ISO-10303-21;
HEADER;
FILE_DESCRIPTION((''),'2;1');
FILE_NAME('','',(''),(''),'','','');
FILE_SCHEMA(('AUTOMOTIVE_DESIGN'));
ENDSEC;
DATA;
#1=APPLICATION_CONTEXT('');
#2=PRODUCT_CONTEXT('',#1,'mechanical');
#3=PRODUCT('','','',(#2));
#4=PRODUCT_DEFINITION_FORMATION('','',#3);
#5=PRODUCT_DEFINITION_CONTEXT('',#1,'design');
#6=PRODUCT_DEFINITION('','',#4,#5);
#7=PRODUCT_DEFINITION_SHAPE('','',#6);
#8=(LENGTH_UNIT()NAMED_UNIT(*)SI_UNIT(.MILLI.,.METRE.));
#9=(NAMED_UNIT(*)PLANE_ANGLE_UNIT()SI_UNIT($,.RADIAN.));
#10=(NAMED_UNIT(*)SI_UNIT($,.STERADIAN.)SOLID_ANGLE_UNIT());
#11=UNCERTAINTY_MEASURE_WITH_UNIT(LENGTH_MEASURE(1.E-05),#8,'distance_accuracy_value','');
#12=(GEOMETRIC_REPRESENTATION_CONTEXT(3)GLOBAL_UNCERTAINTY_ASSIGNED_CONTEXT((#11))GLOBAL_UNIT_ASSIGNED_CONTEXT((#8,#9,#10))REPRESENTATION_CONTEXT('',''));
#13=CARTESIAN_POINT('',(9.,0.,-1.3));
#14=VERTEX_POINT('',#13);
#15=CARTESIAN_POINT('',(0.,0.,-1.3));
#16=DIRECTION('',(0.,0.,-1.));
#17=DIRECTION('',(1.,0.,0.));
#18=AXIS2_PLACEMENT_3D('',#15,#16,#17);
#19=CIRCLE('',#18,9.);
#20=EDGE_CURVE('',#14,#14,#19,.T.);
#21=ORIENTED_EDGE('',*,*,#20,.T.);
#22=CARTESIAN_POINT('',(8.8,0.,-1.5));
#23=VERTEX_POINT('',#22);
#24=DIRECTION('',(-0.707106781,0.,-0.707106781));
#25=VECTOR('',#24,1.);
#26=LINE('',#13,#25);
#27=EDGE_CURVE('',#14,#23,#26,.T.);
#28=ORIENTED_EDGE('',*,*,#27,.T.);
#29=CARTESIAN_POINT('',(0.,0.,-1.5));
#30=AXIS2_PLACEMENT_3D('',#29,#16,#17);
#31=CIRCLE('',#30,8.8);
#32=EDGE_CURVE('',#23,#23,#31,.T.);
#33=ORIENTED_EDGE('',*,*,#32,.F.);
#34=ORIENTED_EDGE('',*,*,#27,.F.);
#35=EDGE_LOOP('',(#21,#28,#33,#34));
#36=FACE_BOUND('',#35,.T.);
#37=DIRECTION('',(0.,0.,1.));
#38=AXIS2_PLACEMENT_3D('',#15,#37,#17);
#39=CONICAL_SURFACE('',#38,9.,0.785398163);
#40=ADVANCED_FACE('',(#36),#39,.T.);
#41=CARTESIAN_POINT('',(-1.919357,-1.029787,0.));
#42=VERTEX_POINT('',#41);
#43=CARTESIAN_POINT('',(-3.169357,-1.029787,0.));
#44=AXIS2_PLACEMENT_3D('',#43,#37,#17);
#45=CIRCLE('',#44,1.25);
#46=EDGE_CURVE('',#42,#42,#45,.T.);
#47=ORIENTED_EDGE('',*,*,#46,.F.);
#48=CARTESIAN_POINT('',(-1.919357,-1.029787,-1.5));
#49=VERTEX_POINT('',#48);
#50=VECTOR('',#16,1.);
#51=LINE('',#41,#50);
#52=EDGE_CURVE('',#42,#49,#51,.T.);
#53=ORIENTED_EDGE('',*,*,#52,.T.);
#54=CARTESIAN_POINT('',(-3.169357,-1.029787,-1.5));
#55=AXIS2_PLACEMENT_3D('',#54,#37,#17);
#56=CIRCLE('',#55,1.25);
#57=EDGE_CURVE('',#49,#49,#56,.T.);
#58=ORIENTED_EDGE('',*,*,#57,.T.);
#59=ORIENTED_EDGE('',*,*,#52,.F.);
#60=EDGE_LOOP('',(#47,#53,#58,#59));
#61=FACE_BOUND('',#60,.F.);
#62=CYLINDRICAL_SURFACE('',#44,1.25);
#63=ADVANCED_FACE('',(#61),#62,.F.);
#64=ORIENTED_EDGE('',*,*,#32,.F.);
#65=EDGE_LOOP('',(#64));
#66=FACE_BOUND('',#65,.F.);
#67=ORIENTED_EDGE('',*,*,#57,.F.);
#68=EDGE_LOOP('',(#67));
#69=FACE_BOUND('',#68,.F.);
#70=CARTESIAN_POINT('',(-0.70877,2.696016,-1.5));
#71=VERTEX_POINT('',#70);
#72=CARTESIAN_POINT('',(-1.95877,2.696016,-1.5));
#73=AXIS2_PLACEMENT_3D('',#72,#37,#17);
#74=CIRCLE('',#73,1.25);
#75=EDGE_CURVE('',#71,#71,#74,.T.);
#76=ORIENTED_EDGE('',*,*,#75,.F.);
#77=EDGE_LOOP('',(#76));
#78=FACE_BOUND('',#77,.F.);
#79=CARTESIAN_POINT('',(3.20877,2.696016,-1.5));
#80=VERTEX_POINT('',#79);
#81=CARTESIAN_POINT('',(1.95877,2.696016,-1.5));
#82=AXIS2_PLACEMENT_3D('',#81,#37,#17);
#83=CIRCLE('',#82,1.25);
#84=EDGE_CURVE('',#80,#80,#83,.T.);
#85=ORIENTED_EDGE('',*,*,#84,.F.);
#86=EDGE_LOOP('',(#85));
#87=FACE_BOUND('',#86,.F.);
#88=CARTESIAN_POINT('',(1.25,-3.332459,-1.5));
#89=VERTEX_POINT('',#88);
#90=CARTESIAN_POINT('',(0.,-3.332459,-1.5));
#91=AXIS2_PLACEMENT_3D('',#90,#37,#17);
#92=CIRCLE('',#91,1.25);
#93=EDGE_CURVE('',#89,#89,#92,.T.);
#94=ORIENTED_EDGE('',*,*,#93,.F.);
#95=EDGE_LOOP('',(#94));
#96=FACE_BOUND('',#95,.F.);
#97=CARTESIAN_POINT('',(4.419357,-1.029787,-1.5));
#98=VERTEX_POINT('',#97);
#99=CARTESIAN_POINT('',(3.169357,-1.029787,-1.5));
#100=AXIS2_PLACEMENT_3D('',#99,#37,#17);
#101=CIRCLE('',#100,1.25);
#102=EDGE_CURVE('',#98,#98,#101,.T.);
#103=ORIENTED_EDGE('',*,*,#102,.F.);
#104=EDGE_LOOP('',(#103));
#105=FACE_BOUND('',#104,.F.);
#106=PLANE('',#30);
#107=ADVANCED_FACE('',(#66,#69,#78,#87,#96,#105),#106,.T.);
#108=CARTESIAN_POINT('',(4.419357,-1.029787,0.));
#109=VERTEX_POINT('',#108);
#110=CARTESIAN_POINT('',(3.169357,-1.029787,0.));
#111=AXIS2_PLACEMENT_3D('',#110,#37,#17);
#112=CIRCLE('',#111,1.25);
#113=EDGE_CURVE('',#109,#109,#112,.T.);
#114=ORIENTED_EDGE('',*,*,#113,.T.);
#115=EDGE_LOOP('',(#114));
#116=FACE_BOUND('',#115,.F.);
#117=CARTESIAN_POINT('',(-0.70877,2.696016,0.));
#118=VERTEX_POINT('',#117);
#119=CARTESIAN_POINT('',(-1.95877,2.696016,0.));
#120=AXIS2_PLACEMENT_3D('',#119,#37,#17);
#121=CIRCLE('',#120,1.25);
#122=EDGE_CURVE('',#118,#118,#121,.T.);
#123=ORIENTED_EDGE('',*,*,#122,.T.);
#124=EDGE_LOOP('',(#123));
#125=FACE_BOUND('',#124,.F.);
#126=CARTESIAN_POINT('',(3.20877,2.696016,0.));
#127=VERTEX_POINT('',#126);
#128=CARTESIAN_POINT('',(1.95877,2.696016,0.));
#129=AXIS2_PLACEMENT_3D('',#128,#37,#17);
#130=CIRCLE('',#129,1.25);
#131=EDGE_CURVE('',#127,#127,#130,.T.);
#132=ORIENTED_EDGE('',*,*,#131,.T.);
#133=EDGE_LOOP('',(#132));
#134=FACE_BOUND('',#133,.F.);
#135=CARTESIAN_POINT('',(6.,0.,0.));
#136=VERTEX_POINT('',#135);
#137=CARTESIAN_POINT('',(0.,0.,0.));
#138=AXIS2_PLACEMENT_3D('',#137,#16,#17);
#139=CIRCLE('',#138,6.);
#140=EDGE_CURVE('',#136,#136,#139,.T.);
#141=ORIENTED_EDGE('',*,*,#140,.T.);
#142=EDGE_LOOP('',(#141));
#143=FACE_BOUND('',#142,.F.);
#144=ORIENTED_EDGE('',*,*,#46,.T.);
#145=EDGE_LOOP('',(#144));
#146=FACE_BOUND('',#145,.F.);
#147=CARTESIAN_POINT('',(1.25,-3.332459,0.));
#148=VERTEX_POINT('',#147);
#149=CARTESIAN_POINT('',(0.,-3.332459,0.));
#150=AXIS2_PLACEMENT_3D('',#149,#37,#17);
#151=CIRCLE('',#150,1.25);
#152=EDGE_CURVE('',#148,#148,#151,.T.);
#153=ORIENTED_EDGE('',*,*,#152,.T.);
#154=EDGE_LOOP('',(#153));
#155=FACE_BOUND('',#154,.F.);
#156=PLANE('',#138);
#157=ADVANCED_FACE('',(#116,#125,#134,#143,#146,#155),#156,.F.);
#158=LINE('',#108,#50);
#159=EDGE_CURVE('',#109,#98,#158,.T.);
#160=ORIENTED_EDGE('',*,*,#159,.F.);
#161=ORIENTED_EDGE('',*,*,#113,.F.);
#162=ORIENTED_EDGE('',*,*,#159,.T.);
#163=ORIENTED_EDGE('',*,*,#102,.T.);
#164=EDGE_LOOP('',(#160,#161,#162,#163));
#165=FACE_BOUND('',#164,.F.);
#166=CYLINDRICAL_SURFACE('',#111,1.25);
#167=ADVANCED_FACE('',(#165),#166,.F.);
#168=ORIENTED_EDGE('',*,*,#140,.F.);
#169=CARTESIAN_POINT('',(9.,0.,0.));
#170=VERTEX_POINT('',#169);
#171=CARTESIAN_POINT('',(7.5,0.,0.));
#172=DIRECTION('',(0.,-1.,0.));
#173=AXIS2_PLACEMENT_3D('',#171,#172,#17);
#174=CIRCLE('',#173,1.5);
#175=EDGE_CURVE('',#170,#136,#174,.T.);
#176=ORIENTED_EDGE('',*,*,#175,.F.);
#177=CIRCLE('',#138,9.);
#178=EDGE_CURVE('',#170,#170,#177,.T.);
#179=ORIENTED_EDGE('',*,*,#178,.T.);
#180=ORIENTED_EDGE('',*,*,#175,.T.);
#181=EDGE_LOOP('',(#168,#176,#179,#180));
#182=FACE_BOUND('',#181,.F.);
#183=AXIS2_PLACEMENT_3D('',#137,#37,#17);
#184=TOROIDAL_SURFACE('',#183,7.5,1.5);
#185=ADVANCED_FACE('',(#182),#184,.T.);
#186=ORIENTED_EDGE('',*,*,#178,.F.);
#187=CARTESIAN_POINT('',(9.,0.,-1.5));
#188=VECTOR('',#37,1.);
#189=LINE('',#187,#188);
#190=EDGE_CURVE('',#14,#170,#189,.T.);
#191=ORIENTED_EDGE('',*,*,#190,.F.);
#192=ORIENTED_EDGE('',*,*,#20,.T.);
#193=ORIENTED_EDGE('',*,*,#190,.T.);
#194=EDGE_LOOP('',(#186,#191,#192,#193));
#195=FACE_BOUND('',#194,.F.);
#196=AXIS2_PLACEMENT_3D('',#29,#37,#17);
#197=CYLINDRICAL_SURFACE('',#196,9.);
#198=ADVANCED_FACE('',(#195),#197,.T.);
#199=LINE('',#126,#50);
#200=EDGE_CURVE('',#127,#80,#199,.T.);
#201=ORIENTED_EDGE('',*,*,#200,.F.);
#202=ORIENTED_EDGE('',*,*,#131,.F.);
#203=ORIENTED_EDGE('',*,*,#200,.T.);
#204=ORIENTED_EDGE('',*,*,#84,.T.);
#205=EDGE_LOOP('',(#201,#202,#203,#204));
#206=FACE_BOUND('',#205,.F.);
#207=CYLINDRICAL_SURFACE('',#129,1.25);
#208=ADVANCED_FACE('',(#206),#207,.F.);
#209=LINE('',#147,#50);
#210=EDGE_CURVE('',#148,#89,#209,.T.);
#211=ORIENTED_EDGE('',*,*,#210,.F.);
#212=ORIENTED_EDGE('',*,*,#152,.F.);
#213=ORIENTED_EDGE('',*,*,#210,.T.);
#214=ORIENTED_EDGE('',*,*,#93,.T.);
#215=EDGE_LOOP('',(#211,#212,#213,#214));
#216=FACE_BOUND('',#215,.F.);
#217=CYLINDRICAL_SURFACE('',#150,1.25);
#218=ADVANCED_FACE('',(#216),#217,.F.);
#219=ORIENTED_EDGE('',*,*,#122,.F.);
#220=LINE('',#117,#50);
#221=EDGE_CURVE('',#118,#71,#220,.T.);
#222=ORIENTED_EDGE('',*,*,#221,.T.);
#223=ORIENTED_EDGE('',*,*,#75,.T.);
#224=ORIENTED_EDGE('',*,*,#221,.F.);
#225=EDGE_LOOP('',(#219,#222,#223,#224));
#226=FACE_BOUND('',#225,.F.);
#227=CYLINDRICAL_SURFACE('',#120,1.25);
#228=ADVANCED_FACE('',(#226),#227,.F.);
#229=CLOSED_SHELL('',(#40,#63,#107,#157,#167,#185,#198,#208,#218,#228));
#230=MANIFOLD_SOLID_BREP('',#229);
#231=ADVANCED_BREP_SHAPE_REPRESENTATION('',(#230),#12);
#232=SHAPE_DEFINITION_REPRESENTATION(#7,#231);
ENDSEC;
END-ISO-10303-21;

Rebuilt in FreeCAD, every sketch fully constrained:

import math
import FreeCAD as App
import Part
import Sketcher
Q = App.Units.Quantity


def edges_at(feature, points):
    """Names of the edges that pass closest to the given points."""
    edges = feature.Shape.Edges
    near = lambda p: min(range(len(edges)), key=lambda i: edges[i].distToShape(Part.Vertex(*p))[0])
    return sorted({f"Edge{near(p) + 1}" for p in points})

doc = App.newDocument("Part")
body = doc.addObject("PartDesign::Body", "Body")

sketch1 = doc.addObject("Sketcher::SketchObject", "Sketch")
body.addObject(sketch1)
sketch1.AttachmentSupport = (doc.XZ_Plane, [""])
sketch1.MapMode = "FlatFace"
sketch1.addGeometry([
    Part.LineSegment(App.Vector(9, -1.5, 0), App.Vector(9, 0, 0)),
    Part.ArcOfCircle(Part.Circle(App.Vector(7.5, 0, 0), App.Vector(0, 0, 1), 1.5), math.radians(0), math.radians(180)),
    Part.LineSegment(App.Vector(6, 0, 0), App.Vector(0, 0, 0)),
    Part.LineSegment(App.Vector(0, 0, 0), App.Vector(0, -1.5, 0)),
    Part.LineSegment(App.Vector(0, -1.5, 0), App.Vector(9, -1.5, 0)),
], False)
sketch1.addConstraint([
    Sketcher.Constraint("Tangent", 0, 2, 1, 1),
    Sketcher.Constraint("Coincident", 1, 2, 2, 1),
    Sketcher.Constraint("Coincident", 2, 2, 3, 1),
    Sketcher.Constraint("Coincident", 3, 2, 4, 1),
    Sketcher.Constraint("Coincident", 4, 2, 0, 1),
    Sketcher.Constraint("Vertical", 0),
    Sketcher.Constraint("Horizontal", 2),
    Sketcher.Constraint("Vertical", 3),
    Sketcher.Constraint("Horizontal", 4),
    Sketcher.Constraint("Coincident", 2, 2, -1, 1),
    Sketcher.Constraint("PointOnObject", 1, 3, -1),
    Sketcher.Constraint("Radius", 1, Q("1.5 mm")),
    Sketcher.Constraint("DistanceX", 2, 2, 2, 1, Q("6 mm")),
    Sketcher.Constraint("DistanceY", 0, 1, 0, 2, Q("1.5 mm")),
])
revolution = doc.addObject("PartDesign::Revolution", "Revolution")
body.addObject(revolution)
revolution.Profile = sketch1
revolution.ReferenceAxis = (sketch1, ["V_Axis"])
revolution.Angle = 360
doc.recompute()

chamfer = doc.addObject("PartDesign::Chamfer", "Chamfer")
body.addObject(chamfer)
chamfer.Base = (revolution, edges_at(revolution, [(-9, 0, -1.5)]))
chamfer.Size = 0.2

sketch2 = doc.addObject("Sketcher::SketchObject", "Sketch001")
body.addObject(sketch2)
sketch2.AttachmentSupport = (doc.XY_Plane, [""])
sketch2.MapMode = "FlatFace"
sketch2.addGeometry([
    Part.Circle(App.Vector(-2, 2.7, 0), App.Vector(0, 0, 1), 1.2),
    Part.Circle(App.Vector(2, 2.7, 0), App.Vector(0, 0, 1), 1.2),
    Part.Circle(App.Vector(3.2, -1, 0), App.Vector(0, 0, 1), 1.2),
    Part.Circle(App.Vector(0, -3.3, 0), App.Vector(0, 0, 1), 1.2),
    Part.Circle(App.Vector(-3.2, -1, 0), App.Vector(0, 0, 1), 1.2),
], False)
sketch2.addConstraint([
    Sketcher.Constraint("Equal", 0, 1),
    Sketcher.Constraint("Equal", 1, 2),
    Sketcher.Constraint("Equal", 2, 3),
    Sketcher.Constraint("Equal", 3, 4),
    Sketcher.Constraint("Symmetric", 0, 3, 1, 3, -2),
    Sketcher.Constraint("Symmetric", 2, 3, 4, 3, -2),
    Sketcher.Constraint("PointOnObject", 3, 3, -2),
    Sketcher.Constraint("Diameter", 0, Q("2.5 mm")),
    Sketcher.Constraint("DistanceX", 0, 3, -1, 1, Q("1.95877 mm")),
    Sketcher.Constraint("DistanceY", 3, 3, -1, 1, Q("3.332459 mm")),
    Sketcher.Constraint("DistanceY", -1, 1, 0, 3, Q("2.696016 mm")),
    Sketcher.Constraint("DistanceX", -1, 1, 2, 3, Q("3.169357 mm")),
    Sketcher.Constraint("DistanceY", 2, 3, -1, 1, Q("1.029787 mm")),
])
pocket1 = doc.addObject("PartDesign::Pocket", "Pocket")
body.addObject(pocket1)
pocket1.Profile = sketch2
pocket1.Type = "ThroughAll"

doc.recompute()
